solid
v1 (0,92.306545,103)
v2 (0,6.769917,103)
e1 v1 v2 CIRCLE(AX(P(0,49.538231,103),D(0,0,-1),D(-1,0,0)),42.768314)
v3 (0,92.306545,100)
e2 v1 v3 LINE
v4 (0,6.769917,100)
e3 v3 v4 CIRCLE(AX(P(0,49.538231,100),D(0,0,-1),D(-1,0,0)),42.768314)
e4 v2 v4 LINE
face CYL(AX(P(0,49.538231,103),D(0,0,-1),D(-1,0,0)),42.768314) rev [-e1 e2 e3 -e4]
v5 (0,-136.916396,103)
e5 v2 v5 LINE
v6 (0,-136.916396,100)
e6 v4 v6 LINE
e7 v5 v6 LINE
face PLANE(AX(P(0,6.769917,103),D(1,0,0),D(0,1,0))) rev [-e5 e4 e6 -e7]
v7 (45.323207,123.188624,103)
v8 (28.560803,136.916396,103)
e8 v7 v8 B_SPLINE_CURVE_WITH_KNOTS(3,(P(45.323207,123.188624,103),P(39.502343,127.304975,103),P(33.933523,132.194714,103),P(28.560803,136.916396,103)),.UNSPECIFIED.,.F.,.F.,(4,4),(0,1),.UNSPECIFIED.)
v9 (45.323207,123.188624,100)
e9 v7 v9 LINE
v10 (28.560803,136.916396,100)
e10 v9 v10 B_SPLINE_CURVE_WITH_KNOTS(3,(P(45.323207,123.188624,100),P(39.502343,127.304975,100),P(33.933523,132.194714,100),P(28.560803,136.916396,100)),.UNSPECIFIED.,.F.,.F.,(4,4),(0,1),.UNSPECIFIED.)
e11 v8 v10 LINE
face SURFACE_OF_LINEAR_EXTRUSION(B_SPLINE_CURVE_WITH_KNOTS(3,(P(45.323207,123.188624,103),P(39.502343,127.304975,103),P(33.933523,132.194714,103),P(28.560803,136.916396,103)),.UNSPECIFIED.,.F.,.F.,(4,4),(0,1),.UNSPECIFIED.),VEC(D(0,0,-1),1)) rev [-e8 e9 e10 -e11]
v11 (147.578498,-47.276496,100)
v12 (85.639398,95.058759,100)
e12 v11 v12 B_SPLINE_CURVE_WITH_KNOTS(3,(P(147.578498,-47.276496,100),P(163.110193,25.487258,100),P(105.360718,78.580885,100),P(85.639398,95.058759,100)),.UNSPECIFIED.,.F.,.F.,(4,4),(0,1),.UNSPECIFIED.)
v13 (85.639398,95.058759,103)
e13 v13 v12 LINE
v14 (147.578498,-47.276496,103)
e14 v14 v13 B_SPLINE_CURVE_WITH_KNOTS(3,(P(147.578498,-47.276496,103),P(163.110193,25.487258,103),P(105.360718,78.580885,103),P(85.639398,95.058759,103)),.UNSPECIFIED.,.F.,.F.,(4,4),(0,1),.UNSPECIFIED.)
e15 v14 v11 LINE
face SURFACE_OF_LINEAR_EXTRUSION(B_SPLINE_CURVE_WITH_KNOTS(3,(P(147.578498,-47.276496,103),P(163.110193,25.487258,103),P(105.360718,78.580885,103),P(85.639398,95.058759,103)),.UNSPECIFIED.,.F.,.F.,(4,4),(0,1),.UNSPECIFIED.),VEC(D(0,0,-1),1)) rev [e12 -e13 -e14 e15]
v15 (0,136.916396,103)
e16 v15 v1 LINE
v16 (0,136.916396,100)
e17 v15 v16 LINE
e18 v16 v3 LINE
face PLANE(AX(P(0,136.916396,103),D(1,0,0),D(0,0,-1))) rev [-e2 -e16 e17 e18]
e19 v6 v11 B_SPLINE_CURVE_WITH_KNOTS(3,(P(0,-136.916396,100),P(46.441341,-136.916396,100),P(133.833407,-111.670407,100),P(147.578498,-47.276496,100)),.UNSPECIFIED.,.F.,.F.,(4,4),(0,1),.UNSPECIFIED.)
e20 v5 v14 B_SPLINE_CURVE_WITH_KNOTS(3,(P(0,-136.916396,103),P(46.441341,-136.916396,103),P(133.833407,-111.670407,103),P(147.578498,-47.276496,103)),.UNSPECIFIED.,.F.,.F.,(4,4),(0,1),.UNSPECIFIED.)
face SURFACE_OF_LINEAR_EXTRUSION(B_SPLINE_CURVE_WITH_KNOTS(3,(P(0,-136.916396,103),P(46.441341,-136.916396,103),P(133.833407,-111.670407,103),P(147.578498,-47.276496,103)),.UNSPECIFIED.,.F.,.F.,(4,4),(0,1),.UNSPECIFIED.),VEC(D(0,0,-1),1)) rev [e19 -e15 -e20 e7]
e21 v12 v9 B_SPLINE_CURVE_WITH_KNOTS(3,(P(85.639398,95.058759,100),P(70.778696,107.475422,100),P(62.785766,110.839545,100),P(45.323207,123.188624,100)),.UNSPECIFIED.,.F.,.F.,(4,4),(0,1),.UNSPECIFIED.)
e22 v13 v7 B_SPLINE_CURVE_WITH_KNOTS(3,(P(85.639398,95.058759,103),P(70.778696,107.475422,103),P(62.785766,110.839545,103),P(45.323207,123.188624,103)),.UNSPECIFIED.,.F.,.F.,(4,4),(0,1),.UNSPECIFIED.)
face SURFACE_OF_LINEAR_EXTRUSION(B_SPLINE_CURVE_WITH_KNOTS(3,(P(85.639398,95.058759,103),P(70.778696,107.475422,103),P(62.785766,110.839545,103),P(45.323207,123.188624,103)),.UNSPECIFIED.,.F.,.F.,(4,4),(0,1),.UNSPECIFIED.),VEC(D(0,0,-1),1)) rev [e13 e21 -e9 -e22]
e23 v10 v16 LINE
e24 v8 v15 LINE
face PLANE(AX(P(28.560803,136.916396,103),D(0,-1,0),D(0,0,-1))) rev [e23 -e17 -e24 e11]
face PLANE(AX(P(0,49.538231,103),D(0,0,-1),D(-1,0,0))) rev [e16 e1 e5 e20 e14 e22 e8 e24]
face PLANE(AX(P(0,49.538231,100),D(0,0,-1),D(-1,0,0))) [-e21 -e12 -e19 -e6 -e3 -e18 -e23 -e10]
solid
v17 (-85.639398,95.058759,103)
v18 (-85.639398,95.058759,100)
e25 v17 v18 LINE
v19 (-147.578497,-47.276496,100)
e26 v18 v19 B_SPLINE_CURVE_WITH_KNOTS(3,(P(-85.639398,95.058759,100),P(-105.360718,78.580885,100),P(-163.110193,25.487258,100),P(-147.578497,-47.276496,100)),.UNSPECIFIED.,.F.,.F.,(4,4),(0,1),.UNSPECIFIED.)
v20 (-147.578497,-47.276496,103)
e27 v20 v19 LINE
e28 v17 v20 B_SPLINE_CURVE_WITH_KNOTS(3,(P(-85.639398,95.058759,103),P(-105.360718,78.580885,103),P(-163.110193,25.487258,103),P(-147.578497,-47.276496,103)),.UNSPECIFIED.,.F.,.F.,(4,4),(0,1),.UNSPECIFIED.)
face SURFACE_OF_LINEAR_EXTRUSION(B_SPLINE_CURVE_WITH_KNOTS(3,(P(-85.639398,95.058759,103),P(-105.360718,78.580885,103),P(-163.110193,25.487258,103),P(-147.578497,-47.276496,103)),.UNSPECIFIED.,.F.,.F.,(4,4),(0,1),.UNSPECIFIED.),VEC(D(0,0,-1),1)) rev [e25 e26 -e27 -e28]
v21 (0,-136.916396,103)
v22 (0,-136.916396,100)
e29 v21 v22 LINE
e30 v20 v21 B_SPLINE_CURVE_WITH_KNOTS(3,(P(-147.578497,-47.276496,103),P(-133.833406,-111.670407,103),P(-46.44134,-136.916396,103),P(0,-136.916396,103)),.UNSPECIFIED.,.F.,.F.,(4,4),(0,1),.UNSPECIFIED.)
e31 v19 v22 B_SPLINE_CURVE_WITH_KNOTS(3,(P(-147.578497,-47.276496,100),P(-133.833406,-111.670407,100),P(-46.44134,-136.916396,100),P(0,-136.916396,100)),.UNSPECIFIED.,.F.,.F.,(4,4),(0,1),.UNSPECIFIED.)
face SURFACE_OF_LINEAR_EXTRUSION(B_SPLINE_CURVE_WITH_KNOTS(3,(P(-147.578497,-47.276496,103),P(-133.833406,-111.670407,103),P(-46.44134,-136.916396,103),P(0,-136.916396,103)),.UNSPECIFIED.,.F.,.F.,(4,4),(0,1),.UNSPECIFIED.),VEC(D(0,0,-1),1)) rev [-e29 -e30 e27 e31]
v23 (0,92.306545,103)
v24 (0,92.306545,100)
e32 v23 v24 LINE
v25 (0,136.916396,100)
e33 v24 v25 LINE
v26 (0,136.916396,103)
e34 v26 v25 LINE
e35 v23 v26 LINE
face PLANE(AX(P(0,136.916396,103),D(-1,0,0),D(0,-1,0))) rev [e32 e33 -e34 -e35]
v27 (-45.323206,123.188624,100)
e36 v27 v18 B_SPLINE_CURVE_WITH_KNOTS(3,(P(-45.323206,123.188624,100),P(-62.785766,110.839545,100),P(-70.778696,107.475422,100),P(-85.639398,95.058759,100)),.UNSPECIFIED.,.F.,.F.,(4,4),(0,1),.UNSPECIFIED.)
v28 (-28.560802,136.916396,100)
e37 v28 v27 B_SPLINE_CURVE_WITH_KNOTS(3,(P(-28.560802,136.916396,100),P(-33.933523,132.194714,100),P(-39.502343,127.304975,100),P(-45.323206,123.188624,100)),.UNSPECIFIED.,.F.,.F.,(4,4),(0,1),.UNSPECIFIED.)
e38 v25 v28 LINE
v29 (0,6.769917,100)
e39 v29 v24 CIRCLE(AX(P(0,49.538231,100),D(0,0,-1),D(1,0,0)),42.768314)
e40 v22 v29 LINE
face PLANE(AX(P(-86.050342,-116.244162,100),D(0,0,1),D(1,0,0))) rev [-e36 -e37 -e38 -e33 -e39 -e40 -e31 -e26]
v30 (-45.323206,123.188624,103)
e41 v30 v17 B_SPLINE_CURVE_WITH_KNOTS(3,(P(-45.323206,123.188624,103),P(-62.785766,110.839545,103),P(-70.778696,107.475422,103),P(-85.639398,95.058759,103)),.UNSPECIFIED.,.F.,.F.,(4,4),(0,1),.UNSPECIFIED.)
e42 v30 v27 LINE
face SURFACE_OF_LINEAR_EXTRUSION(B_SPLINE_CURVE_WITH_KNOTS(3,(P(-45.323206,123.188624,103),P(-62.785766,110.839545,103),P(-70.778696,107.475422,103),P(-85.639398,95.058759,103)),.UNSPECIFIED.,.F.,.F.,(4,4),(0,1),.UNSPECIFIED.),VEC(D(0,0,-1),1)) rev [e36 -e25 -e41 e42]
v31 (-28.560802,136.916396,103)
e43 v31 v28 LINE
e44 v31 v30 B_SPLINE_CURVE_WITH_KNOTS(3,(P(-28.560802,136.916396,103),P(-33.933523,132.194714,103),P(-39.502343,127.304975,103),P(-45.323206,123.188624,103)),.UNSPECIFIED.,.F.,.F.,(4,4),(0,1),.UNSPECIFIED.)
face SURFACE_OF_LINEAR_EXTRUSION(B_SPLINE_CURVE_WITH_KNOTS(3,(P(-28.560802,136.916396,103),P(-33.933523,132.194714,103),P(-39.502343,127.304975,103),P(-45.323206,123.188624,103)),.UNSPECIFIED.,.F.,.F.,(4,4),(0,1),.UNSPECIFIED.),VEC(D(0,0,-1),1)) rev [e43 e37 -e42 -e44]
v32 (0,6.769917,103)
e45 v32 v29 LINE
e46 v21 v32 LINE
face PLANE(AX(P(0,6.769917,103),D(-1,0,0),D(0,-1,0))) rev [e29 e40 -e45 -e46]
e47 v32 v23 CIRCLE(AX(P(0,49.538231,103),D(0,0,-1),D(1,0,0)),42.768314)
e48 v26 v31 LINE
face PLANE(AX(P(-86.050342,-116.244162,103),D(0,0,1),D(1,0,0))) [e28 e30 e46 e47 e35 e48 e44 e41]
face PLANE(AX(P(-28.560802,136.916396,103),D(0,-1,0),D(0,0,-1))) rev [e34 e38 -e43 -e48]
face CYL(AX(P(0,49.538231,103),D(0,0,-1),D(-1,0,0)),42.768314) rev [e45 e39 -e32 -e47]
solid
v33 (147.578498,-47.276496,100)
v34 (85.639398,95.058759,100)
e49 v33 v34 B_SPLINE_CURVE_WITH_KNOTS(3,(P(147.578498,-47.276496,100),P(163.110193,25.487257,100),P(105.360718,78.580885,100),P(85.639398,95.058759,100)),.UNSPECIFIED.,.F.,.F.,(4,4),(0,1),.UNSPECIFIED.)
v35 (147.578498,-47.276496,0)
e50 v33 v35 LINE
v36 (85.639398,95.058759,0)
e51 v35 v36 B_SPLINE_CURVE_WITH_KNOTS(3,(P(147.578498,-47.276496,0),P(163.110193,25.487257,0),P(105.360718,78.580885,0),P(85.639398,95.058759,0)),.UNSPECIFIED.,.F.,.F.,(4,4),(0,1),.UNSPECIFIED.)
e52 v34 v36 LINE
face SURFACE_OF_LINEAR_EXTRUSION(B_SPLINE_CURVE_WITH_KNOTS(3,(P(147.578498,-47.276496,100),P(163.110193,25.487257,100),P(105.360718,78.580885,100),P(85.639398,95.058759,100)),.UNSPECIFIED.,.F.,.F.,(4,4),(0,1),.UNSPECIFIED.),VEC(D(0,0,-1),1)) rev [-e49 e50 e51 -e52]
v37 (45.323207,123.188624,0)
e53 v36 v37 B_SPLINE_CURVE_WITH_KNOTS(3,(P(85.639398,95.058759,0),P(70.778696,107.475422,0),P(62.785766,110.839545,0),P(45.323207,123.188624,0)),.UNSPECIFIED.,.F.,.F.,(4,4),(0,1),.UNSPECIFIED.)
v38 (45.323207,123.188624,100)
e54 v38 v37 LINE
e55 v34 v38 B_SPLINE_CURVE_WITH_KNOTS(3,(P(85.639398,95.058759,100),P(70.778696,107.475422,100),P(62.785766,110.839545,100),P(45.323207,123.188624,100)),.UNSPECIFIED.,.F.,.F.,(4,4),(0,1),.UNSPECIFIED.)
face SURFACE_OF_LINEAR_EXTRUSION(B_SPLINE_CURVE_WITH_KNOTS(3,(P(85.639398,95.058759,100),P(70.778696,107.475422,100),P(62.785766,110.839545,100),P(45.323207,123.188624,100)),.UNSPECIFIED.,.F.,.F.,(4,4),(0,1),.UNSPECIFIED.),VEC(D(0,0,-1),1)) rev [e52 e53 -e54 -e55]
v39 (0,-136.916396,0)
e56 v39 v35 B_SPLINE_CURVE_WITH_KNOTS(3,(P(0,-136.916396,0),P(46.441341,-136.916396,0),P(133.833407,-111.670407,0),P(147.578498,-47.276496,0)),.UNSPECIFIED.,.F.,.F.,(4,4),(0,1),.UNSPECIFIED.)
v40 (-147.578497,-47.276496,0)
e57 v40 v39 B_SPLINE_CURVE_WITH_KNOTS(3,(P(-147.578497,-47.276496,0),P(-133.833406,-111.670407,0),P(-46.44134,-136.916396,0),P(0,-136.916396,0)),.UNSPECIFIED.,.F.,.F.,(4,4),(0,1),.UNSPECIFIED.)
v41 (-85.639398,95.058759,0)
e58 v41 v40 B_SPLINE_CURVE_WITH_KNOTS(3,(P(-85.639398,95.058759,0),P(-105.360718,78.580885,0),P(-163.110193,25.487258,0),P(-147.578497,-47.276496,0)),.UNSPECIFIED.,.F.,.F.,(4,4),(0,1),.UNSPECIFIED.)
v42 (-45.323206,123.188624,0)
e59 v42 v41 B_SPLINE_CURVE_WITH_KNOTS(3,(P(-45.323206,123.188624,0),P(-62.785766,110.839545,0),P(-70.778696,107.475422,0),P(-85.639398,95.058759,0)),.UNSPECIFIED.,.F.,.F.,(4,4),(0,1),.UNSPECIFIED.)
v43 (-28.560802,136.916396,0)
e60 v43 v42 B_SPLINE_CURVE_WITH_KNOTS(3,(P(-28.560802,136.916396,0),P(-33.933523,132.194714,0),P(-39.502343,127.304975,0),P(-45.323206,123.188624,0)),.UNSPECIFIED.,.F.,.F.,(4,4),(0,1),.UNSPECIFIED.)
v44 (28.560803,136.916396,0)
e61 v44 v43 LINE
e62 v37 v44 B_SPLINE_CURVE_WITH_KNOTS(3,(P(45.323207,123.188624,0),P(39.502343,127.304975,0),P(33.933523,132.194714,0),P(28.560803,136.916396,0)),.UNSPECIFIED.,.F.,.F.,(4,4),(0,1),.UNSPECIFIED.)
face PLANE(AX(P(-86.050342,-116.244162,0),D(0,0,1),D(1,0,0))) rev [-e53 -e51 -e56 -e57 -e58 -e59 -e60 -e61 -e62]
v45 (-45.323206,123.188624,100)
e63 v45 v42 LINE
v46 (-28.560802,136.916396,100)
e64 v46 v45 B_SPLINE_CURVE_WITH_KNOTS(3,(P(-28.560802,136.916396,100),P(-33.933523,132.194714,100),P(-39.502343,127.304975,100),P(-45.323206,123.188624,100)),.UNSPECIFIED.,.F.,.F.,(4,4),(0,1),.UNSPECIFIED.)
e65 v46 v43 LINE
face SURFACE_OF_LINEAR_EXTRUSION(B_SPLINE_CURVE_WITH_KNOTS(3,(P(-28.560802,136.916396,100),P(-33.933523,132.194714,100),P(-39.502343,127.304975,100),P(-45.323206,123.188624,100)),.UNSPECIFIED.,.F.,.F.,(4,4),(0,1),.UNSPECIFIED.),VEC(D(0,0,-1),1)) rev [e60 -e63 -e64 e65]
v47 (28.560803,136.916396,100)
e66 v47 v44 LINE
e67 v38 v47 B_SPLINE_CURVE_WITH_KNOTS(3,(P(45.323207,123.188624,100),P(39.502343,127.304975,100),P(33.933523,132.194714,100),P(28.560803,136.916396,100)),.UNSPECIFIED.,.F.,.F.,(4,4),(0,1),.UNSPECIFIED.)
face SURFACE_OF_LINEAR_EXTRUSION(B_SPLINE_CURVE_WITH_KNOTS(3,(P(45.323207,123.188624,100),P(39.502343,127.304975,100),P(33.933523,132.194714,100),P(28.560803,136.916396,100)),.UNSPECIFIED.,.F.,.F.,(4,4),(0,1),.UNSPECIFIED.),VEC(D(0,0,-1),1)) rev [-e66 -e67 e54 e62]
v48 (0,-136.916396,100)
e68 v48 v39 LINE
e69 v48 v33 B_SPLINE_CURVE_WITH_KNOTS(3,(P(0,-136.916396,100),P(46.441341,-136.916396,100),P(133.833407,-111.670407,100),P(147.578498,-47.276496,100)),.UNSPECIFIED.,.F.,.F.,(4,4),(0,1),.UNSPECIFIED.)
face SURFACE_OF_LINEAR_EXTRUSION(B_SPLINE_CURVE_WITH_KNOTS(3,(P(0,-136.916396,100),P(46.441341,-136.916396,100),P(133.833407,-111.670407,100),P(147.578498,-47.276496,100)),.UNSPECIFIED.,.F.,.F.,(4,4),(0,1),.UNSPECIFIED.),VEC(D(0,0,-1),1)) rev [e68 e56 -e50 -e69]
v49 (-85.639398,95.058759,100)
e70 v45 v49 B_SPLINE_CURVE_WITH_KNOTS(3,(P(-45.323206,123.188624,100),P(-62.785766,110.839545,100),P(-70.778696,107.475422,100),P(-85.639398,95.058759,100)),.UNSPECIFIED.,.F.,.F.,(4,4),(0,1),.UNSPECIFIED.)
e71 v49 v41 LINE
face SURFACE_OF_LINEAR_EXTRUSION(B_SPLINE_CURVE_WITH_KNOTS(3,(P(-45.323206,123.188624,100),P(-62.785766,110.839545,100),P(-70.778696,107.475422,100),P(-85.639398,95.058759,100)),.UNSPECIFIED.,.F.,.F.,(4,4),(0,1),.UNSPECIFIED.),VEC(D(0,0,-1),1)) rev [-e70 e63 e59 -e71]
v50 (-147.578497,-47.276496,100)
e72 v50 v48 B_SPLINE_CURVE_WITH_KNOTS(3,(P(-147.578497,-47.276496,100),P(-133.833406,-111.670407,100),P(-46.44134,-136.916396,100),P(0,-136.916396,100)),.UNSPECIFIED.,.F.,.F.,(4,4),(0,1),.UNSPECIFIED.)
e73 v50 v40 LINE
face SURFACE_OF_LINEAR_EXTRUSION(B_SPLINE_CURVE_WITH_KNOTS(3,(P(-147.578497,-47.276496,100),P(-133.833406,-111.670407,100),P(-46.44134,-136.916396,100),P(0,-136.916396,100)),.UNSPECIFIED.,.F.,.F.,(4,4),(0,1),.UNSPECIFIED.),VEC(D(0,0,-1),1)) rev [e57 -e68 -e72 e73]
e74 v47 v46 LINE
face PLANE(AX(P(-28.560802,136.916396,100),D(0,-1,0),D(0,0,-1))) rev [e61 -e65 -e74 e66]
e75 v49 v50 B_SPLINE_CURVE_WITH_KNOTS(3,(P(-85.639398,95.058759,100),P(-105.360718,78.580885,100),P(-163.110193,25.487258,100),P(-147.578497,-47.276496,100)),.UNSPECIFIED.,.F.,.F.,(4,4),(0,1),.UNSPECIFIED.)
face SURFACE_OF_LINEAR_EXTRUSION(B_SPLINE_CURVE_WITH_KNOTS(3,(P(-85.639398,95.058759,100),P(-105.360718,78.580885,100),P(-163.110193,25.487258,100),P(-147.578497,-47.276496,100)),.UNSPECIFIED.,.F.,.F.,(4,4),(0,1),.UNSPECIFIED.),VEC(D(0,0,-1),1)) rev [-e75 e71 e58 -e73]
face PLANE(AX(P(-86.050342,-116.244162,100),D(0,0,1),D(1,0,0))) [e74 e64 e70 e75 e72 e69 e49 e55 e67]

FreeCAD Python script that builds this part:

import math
import FreeCAD as App
import Part
import Sketcher
Q = App.Units.Quantity

doc = App.newDocument("Part")
body = doc.addObject("PartDesign::Body", "Body")

# Sketch on XY plane
sketch1 = body.newObject("Sketcher::SketchObject", "Sketch")
sketch1.AttachmentSupport = (doc.getObject("XY_Plane"), [""])
sketch1.MapMode = "FlatFace"
sketch1.addGeometry([
    Part.LineSegment(App.Vector(0, 136.916396, 0), App.Vector(-28.560802, 136.916396, 0)),  # 0
    Part.BSplineCurve([App.Vector(-45.323206, 123.188624, 0), App.Vector(-39.502343, 127.304975, 0), App.Vector(-33.933523, 132.194714, 0), App.Vector(-28.560802, 136.916396, 0)], [4, 4], [0, 1], False, 3, [1, 1, 1, 1], False),  # 1
    Part.BSplineCurve([App.Vector(-85.639398, 95.058759, 0), App.Vector(-70.778696, 107.475422, 0), App.Vector(-62.785766, 110.839545, 0), App.Vector(-45.323206, 123.188624, 0)], [4, 4], [0, 1], False, 3, [1, 1, 1, 1], False),  # 2
    Part.BSplineCurve([App.Vector(-147.578497, -47.276496, 0), App.Vector(-163.110193, 25.487258, 0), App.Vector(-105.360718, 78.580885, 0), App.Vector(-85.639398, 95.058759, 0)], [4, 4], [0, 1], False, 3, [1, 1, 1, 1], False),  # 3
    Part.BSplineCurve([App.Vector(0, -136.916396, 0), App.Vector(-46.44134, -136.916396, 0), App.Vector(-133.833406, -111.670407, 0), App.Vector(-147.578497, -47.276496, 0)], [4, 4], [0, 1], False, 3, [1, 1, 1, 1], False),  # 4
    Part.LineSegment(App.Vector(0, -136.916396, 0), App.Vector(0, 136.916396, 0)),  # 5
], False)
sketch1.addConstraint([
    Sketcher.Constraint("Block", 1),
    Sketcher.Constraint("Block", 2),
    Sketcher.Constraint("Block", 3),
    Sketcher.Constraint("Block", 4),
    Sketcher.Constraint("Coincident", 0, 2, 1, 2),
    Sketcher.Constraint("Coincident", 4, 1, 5, 1),
    Sketcher.Constraint("Coincident", 5, 2, 0, 1),
    Sketcher.Constraint("Horizontal", 0),
    Sketcher.Constraint("Vertical", 5),
])
pad1 = body.newObject("PartDesign::Pad", "Pad")
pad1.Profile = sketch1
pad1.Length = 100

# Sketch on XY plane
sketch2 = body.newObject("Sketcher::SketchObject", "Sketch001")
sketch2.AttachmentSupport = (doc.getObject("XY_Plane"), [""])
sketch2.MapMode = "FlatFace"
sketch2.addGeometry([
    Part.LineSegment(App.Vector(0, 136.916396, 0), App.Vector(0, -136.916396, 0)),  # 0
    Part.BSplineCurve([App.Vector(0, -136.916396, 0), App.Vector(46.441341, -136.916396, 0), App.Vector(133.833407, -111.670407, 0), App.Vector(147.578498, -47.276496, 0)], [4, 4], [0, 1], False, 3, [1, 1, 1, 1], False),  # 1
    Part.BSplineCurve([App.Vector(147.578498, -47.276496, 0), App.Vector(163.110193, 25.487257, 0), App.Vector(105.360718, 78.580885, 0), App.Vector(85.639398, 95.058759, 0)], [4, 4], [0, 1], False, 3, [1, 1, 1, 1], False),  # 2
    Part.BSplineCurve([App.Vector(85.639398, 95.058759, 0), App.Vector(70.778696, 107.475422, 0), App.Vector(62.785766, 110.839545, 0), App.Vector(45.323207, 123.188624, 0)], [4, 4], [0, 1], False, 3, [1, 1, 1, 1], False),  # 3
    Part.BSplineCurve([App.Vector(45.323207, 123.188624, 0), App.Vector(39.502343, 127.304975, 0), App.Vector(33.933523, 132.194714, 0), App.Vector(28.560803, 136.916396, 0)], [4, 4], [0, 1], False, 3, [1, 1, 1, 1], False),  # 4
    Part.LineSegment(App.Vector(28.560803, 136.916396, 0), App.Vector(0, 136.916396, 0)),  # 5
], False)
sketch2.addConstraint([
    Sketcher.Constraint("Block", 1),
    Sketcher.Constraint("Block", 2),
    Sketcher.Constraint("Block", 3),
    Sketcher.Constraint("Block", 4),
    Sketcher.Constraint("Coincident", 0, 2, 1, 1),
    Sketcher.Constraint("Coincident", 4, 2, 5, 1),
    Sketcher.Constraint("Coincident", 5, 2, 0, 1),
    Sketcher.Constraint("Vertical", 0),
    Sketcher.Constraint("Horizontal", 5),
])
pad2 = body.newObject("PartDesign::Pad", "Pad001")
pad2.Profile = sketch2
pad2.Length = 100
body2 = doc.addObject("PartDesign::Body", "Body001")

# Sketch on XY plane
sketch3 = body2.newObject("Sketcher::SketchObject", "Sketch002")
sketch3.AttachmentSupport = (doc.getObject("XY_Plane001"), [""])
sketch3.MapMode = "FlatFace"
sketch3.AttachmentOffset = App.Placement(App.Vector(0, 0, 100), App.Rotation())
sketch3.addGeometry([
    Part.LineSegment(App.Vector(0, 136.916396, 0), App.Vector(-28.560802, 136.916396, 0)),  # 0
    Part.BSplineCurve([App.Vector(-45.323206, 123.188624, 0), App.Vector(-39.502343, 127.304975, 0), App.Vector(-33.933523, 132.194714, 0), App.Vector(-28.560802, 136.916396, 0)], [4, 4], [0, 1], False, 3, [1, 1, 1, 1], False),  # 1
    Part.BSplineCurve([App.Vector(-85.639398, 95.058759, 0), App.Vector(-70.778696, 107.475422, 0), App.Vector(-62.785766, 110.839545, 0), App.Vector(-45.323206, 123.188624, 0)], [4, 4], [0, 1], False, 3, [1, 1, 1, 1], False),  # 2
    Part.BSplineCurve([App.Vector(-147.578497, -47.276496, 0), App.Vector(-163.110193, 25.487258, 0), App.Vector(-105.360718, 78.580885, 0), App.Vector(-85.639398, 95.058759, 0)], [4, 4], [0, 1], False, 3, [1, 1, 1, 1], False),  # 3
    Part.BSplineCurve([App.Vector(0, -136.916396, 0), App.Vector(-46.44134, -136.916396, 0), App.Vector(-133.833406, -111.670407, 0), App.Vector(-147.578497, -47.276496, 0)], [4, 4], [0, 1], False, 3, [1, 1, 1, 1], False),  # 4
    Part.LineSegment(App.Vector(0, -136.916396, 0), App.Vector(0, 6.769917, 0)),  # 5
    Part.ArcOfCircle(Part.Circle(App.Vector(0, 49.538231, 0), App.Vector(0, 0, 1), 42.768314), math.radians(90), math.radians(270)),  # 6
    Part.LineSegment(App.Vector(0, 92.306545, 0), App.Vector(0, 136.916396, 0)),  # 7
], False)
sketch3.addConstraint([
    Sketcher.Constraint("Block", 1),
    Sketcher.Constraint("Block", 2),
    Sketcher.Constraint("Block", 3),
    Sketcher.Constraint("Block", 4),
    Sketcher.Constraint("Coincident", 0, 2, 1, 2),
    Sketcher.Constraint("Coincident", 4, 1, 5, 1),
    Sketcher.Constraint("Coincident", 5, 2, 6, 2),
    Sketcher.Constraint("Coincident", 6, 1, 7, 1),
    Sketcher.Constraint("Coincident", 7, 2, 0, 1),
    Sketcher.Constraint("Horizontal", 0),
    Sketcher.Constraint("Vertical", 5),
    Sketcher.Constraint("Vertical", 7),
    Sketcher.Constraint("PointOnObject", 6, 3, -2),
    Sketcher.Constraint("PointOnObject", 6, 1, -2),
    Sketcher.Constraint("Radius", 6, Q("42.768314 mm")),
    Sketcher.Constraint("DistanceY", 7, 1, 7, 2, Q("44.60985 mm")),
])
pad3 = body2.newObject("PartDesign::Pad", "Pad002")
pad3.Profile = sketch3
pad3.Length = 3
body3 = doc.addObject("PartDesign::Body", "Body002")

# Sketch on XY plane
sketch4 = body3.newObject("Sketcher::SketchObject", "Sketch003")
sketch4.AttachmentSupport = (doc.getObject("XY_Plane002"), [""])
sketch4.MapMode = "FlatFace"
sketch4.AttachmentOffset = App.Placement(App.Vector(0, 0, 100), App.Rotation())
sketch4.addGeometry([
    Part.LineSegment(App.Vector(0, 6.769917, 0), App.Vector(0, -136.916396, 0)),  # 0
    Part.BSplineCurve([App.Vector(0, -136.916396, 0), App.Vector(46.441341, -136.916396, 0), App.Vector(133.833407, -111.670407, 0), App.Vector(147.578498, -47.276496, 0)], [4, 4], [0, 1], False, 3, [1, 1, 1, 1], False),  # 1
    Part.BSplineCurve([App.Vector(147.578498, -47.276496, 0), App.Vector(163.110193, 25.487258, 0), App.Vector(105.360718, 78.580885, 0), App.Vector(85.639398, 95.058759, 0)], [4, 4], [0, 1], False, 3, [1, 1, 1, 1], False),  # 2
    Part.BSplineCurve([App.Vector(85.639398, 95.058759, 0), App.Vector(70.778696, 107.475422, 0), App.Vector(62.785766, 110.839545, 0), App.Vector(45.323207, 123.188624, 0)], [4, 4], [0, 1], False, 3, [1, 1, 1, 1], False),  # 3
    Part.BSplineCurve([App.Vector(45.323207, 123.188624, 0), App.Vector(39.502343, 127.304975, 0), App.Vector(33.933523, 132.194714, 0), App.Vector(28.560803, 136.916396, 0)], [4, 4], [0, 1], False, 3, [1, 1, 1, 1], False),  # 4
    Part.LineSegment(App.Vector(28.560803, 136.916396, 0), App.Vector(0, 136.916396, 0)),  # 5
    Part.LineSegment(App.Vector(0, 136.916396, 0), App.Vector(0, 92.306545, 0)),  # 6
    Part.ArcOfCircle(Part.Circle(App.Vector(0, 49.538231, 0), App.Vector(0, 0, 1), 42.768314), math.radians(-90), math.radians(90)),  # 7
], False)
sketch4.addConstraint([
    Sketcher.Constraint("Block", 1),
    Sketcher.Constraint("Block", 2),
    Sketcher.Constraint("Block", 3),
    Sketcher.Constraint("Block", 4),
    Sketcher.Constraint("Coincident", 0, 2, 1, 1),
    Sketcher.Constraint("Coincident", 4, 2, 5, 1),
    Sketcher.Constraint("Coincident", 5, 2, 6, 1),
    Sketcher.Constraint("Coincident", 6, 2, 7, 2),
    Sketcher.Constraint("Coincident", 7, 1, 0, 1),
    Sketcher.Constraint("Vertical", 0),
    Sketcher.Constraint("Horizontal", 5),
    Sketcher.Constraint("Vertical", 6),
    Sketcher.Constraint("PointOnObject", 7, 3, -2),
    Sketcher.Constraint("PointOnObject", 5, 2, -2),
    Sketcher.Constraint("Radius", 7, Q("42.768314 mm")),
    Sketcher.Constraint("DistanceY", 6, 2, 6, 1, Q("44.60985 mm")),
])
pad4 = body3.newObject("PartDesign::Pad", "Pad003")
pad4.Profile = sketch4
pad4.Length = 3

doc.recompute()
